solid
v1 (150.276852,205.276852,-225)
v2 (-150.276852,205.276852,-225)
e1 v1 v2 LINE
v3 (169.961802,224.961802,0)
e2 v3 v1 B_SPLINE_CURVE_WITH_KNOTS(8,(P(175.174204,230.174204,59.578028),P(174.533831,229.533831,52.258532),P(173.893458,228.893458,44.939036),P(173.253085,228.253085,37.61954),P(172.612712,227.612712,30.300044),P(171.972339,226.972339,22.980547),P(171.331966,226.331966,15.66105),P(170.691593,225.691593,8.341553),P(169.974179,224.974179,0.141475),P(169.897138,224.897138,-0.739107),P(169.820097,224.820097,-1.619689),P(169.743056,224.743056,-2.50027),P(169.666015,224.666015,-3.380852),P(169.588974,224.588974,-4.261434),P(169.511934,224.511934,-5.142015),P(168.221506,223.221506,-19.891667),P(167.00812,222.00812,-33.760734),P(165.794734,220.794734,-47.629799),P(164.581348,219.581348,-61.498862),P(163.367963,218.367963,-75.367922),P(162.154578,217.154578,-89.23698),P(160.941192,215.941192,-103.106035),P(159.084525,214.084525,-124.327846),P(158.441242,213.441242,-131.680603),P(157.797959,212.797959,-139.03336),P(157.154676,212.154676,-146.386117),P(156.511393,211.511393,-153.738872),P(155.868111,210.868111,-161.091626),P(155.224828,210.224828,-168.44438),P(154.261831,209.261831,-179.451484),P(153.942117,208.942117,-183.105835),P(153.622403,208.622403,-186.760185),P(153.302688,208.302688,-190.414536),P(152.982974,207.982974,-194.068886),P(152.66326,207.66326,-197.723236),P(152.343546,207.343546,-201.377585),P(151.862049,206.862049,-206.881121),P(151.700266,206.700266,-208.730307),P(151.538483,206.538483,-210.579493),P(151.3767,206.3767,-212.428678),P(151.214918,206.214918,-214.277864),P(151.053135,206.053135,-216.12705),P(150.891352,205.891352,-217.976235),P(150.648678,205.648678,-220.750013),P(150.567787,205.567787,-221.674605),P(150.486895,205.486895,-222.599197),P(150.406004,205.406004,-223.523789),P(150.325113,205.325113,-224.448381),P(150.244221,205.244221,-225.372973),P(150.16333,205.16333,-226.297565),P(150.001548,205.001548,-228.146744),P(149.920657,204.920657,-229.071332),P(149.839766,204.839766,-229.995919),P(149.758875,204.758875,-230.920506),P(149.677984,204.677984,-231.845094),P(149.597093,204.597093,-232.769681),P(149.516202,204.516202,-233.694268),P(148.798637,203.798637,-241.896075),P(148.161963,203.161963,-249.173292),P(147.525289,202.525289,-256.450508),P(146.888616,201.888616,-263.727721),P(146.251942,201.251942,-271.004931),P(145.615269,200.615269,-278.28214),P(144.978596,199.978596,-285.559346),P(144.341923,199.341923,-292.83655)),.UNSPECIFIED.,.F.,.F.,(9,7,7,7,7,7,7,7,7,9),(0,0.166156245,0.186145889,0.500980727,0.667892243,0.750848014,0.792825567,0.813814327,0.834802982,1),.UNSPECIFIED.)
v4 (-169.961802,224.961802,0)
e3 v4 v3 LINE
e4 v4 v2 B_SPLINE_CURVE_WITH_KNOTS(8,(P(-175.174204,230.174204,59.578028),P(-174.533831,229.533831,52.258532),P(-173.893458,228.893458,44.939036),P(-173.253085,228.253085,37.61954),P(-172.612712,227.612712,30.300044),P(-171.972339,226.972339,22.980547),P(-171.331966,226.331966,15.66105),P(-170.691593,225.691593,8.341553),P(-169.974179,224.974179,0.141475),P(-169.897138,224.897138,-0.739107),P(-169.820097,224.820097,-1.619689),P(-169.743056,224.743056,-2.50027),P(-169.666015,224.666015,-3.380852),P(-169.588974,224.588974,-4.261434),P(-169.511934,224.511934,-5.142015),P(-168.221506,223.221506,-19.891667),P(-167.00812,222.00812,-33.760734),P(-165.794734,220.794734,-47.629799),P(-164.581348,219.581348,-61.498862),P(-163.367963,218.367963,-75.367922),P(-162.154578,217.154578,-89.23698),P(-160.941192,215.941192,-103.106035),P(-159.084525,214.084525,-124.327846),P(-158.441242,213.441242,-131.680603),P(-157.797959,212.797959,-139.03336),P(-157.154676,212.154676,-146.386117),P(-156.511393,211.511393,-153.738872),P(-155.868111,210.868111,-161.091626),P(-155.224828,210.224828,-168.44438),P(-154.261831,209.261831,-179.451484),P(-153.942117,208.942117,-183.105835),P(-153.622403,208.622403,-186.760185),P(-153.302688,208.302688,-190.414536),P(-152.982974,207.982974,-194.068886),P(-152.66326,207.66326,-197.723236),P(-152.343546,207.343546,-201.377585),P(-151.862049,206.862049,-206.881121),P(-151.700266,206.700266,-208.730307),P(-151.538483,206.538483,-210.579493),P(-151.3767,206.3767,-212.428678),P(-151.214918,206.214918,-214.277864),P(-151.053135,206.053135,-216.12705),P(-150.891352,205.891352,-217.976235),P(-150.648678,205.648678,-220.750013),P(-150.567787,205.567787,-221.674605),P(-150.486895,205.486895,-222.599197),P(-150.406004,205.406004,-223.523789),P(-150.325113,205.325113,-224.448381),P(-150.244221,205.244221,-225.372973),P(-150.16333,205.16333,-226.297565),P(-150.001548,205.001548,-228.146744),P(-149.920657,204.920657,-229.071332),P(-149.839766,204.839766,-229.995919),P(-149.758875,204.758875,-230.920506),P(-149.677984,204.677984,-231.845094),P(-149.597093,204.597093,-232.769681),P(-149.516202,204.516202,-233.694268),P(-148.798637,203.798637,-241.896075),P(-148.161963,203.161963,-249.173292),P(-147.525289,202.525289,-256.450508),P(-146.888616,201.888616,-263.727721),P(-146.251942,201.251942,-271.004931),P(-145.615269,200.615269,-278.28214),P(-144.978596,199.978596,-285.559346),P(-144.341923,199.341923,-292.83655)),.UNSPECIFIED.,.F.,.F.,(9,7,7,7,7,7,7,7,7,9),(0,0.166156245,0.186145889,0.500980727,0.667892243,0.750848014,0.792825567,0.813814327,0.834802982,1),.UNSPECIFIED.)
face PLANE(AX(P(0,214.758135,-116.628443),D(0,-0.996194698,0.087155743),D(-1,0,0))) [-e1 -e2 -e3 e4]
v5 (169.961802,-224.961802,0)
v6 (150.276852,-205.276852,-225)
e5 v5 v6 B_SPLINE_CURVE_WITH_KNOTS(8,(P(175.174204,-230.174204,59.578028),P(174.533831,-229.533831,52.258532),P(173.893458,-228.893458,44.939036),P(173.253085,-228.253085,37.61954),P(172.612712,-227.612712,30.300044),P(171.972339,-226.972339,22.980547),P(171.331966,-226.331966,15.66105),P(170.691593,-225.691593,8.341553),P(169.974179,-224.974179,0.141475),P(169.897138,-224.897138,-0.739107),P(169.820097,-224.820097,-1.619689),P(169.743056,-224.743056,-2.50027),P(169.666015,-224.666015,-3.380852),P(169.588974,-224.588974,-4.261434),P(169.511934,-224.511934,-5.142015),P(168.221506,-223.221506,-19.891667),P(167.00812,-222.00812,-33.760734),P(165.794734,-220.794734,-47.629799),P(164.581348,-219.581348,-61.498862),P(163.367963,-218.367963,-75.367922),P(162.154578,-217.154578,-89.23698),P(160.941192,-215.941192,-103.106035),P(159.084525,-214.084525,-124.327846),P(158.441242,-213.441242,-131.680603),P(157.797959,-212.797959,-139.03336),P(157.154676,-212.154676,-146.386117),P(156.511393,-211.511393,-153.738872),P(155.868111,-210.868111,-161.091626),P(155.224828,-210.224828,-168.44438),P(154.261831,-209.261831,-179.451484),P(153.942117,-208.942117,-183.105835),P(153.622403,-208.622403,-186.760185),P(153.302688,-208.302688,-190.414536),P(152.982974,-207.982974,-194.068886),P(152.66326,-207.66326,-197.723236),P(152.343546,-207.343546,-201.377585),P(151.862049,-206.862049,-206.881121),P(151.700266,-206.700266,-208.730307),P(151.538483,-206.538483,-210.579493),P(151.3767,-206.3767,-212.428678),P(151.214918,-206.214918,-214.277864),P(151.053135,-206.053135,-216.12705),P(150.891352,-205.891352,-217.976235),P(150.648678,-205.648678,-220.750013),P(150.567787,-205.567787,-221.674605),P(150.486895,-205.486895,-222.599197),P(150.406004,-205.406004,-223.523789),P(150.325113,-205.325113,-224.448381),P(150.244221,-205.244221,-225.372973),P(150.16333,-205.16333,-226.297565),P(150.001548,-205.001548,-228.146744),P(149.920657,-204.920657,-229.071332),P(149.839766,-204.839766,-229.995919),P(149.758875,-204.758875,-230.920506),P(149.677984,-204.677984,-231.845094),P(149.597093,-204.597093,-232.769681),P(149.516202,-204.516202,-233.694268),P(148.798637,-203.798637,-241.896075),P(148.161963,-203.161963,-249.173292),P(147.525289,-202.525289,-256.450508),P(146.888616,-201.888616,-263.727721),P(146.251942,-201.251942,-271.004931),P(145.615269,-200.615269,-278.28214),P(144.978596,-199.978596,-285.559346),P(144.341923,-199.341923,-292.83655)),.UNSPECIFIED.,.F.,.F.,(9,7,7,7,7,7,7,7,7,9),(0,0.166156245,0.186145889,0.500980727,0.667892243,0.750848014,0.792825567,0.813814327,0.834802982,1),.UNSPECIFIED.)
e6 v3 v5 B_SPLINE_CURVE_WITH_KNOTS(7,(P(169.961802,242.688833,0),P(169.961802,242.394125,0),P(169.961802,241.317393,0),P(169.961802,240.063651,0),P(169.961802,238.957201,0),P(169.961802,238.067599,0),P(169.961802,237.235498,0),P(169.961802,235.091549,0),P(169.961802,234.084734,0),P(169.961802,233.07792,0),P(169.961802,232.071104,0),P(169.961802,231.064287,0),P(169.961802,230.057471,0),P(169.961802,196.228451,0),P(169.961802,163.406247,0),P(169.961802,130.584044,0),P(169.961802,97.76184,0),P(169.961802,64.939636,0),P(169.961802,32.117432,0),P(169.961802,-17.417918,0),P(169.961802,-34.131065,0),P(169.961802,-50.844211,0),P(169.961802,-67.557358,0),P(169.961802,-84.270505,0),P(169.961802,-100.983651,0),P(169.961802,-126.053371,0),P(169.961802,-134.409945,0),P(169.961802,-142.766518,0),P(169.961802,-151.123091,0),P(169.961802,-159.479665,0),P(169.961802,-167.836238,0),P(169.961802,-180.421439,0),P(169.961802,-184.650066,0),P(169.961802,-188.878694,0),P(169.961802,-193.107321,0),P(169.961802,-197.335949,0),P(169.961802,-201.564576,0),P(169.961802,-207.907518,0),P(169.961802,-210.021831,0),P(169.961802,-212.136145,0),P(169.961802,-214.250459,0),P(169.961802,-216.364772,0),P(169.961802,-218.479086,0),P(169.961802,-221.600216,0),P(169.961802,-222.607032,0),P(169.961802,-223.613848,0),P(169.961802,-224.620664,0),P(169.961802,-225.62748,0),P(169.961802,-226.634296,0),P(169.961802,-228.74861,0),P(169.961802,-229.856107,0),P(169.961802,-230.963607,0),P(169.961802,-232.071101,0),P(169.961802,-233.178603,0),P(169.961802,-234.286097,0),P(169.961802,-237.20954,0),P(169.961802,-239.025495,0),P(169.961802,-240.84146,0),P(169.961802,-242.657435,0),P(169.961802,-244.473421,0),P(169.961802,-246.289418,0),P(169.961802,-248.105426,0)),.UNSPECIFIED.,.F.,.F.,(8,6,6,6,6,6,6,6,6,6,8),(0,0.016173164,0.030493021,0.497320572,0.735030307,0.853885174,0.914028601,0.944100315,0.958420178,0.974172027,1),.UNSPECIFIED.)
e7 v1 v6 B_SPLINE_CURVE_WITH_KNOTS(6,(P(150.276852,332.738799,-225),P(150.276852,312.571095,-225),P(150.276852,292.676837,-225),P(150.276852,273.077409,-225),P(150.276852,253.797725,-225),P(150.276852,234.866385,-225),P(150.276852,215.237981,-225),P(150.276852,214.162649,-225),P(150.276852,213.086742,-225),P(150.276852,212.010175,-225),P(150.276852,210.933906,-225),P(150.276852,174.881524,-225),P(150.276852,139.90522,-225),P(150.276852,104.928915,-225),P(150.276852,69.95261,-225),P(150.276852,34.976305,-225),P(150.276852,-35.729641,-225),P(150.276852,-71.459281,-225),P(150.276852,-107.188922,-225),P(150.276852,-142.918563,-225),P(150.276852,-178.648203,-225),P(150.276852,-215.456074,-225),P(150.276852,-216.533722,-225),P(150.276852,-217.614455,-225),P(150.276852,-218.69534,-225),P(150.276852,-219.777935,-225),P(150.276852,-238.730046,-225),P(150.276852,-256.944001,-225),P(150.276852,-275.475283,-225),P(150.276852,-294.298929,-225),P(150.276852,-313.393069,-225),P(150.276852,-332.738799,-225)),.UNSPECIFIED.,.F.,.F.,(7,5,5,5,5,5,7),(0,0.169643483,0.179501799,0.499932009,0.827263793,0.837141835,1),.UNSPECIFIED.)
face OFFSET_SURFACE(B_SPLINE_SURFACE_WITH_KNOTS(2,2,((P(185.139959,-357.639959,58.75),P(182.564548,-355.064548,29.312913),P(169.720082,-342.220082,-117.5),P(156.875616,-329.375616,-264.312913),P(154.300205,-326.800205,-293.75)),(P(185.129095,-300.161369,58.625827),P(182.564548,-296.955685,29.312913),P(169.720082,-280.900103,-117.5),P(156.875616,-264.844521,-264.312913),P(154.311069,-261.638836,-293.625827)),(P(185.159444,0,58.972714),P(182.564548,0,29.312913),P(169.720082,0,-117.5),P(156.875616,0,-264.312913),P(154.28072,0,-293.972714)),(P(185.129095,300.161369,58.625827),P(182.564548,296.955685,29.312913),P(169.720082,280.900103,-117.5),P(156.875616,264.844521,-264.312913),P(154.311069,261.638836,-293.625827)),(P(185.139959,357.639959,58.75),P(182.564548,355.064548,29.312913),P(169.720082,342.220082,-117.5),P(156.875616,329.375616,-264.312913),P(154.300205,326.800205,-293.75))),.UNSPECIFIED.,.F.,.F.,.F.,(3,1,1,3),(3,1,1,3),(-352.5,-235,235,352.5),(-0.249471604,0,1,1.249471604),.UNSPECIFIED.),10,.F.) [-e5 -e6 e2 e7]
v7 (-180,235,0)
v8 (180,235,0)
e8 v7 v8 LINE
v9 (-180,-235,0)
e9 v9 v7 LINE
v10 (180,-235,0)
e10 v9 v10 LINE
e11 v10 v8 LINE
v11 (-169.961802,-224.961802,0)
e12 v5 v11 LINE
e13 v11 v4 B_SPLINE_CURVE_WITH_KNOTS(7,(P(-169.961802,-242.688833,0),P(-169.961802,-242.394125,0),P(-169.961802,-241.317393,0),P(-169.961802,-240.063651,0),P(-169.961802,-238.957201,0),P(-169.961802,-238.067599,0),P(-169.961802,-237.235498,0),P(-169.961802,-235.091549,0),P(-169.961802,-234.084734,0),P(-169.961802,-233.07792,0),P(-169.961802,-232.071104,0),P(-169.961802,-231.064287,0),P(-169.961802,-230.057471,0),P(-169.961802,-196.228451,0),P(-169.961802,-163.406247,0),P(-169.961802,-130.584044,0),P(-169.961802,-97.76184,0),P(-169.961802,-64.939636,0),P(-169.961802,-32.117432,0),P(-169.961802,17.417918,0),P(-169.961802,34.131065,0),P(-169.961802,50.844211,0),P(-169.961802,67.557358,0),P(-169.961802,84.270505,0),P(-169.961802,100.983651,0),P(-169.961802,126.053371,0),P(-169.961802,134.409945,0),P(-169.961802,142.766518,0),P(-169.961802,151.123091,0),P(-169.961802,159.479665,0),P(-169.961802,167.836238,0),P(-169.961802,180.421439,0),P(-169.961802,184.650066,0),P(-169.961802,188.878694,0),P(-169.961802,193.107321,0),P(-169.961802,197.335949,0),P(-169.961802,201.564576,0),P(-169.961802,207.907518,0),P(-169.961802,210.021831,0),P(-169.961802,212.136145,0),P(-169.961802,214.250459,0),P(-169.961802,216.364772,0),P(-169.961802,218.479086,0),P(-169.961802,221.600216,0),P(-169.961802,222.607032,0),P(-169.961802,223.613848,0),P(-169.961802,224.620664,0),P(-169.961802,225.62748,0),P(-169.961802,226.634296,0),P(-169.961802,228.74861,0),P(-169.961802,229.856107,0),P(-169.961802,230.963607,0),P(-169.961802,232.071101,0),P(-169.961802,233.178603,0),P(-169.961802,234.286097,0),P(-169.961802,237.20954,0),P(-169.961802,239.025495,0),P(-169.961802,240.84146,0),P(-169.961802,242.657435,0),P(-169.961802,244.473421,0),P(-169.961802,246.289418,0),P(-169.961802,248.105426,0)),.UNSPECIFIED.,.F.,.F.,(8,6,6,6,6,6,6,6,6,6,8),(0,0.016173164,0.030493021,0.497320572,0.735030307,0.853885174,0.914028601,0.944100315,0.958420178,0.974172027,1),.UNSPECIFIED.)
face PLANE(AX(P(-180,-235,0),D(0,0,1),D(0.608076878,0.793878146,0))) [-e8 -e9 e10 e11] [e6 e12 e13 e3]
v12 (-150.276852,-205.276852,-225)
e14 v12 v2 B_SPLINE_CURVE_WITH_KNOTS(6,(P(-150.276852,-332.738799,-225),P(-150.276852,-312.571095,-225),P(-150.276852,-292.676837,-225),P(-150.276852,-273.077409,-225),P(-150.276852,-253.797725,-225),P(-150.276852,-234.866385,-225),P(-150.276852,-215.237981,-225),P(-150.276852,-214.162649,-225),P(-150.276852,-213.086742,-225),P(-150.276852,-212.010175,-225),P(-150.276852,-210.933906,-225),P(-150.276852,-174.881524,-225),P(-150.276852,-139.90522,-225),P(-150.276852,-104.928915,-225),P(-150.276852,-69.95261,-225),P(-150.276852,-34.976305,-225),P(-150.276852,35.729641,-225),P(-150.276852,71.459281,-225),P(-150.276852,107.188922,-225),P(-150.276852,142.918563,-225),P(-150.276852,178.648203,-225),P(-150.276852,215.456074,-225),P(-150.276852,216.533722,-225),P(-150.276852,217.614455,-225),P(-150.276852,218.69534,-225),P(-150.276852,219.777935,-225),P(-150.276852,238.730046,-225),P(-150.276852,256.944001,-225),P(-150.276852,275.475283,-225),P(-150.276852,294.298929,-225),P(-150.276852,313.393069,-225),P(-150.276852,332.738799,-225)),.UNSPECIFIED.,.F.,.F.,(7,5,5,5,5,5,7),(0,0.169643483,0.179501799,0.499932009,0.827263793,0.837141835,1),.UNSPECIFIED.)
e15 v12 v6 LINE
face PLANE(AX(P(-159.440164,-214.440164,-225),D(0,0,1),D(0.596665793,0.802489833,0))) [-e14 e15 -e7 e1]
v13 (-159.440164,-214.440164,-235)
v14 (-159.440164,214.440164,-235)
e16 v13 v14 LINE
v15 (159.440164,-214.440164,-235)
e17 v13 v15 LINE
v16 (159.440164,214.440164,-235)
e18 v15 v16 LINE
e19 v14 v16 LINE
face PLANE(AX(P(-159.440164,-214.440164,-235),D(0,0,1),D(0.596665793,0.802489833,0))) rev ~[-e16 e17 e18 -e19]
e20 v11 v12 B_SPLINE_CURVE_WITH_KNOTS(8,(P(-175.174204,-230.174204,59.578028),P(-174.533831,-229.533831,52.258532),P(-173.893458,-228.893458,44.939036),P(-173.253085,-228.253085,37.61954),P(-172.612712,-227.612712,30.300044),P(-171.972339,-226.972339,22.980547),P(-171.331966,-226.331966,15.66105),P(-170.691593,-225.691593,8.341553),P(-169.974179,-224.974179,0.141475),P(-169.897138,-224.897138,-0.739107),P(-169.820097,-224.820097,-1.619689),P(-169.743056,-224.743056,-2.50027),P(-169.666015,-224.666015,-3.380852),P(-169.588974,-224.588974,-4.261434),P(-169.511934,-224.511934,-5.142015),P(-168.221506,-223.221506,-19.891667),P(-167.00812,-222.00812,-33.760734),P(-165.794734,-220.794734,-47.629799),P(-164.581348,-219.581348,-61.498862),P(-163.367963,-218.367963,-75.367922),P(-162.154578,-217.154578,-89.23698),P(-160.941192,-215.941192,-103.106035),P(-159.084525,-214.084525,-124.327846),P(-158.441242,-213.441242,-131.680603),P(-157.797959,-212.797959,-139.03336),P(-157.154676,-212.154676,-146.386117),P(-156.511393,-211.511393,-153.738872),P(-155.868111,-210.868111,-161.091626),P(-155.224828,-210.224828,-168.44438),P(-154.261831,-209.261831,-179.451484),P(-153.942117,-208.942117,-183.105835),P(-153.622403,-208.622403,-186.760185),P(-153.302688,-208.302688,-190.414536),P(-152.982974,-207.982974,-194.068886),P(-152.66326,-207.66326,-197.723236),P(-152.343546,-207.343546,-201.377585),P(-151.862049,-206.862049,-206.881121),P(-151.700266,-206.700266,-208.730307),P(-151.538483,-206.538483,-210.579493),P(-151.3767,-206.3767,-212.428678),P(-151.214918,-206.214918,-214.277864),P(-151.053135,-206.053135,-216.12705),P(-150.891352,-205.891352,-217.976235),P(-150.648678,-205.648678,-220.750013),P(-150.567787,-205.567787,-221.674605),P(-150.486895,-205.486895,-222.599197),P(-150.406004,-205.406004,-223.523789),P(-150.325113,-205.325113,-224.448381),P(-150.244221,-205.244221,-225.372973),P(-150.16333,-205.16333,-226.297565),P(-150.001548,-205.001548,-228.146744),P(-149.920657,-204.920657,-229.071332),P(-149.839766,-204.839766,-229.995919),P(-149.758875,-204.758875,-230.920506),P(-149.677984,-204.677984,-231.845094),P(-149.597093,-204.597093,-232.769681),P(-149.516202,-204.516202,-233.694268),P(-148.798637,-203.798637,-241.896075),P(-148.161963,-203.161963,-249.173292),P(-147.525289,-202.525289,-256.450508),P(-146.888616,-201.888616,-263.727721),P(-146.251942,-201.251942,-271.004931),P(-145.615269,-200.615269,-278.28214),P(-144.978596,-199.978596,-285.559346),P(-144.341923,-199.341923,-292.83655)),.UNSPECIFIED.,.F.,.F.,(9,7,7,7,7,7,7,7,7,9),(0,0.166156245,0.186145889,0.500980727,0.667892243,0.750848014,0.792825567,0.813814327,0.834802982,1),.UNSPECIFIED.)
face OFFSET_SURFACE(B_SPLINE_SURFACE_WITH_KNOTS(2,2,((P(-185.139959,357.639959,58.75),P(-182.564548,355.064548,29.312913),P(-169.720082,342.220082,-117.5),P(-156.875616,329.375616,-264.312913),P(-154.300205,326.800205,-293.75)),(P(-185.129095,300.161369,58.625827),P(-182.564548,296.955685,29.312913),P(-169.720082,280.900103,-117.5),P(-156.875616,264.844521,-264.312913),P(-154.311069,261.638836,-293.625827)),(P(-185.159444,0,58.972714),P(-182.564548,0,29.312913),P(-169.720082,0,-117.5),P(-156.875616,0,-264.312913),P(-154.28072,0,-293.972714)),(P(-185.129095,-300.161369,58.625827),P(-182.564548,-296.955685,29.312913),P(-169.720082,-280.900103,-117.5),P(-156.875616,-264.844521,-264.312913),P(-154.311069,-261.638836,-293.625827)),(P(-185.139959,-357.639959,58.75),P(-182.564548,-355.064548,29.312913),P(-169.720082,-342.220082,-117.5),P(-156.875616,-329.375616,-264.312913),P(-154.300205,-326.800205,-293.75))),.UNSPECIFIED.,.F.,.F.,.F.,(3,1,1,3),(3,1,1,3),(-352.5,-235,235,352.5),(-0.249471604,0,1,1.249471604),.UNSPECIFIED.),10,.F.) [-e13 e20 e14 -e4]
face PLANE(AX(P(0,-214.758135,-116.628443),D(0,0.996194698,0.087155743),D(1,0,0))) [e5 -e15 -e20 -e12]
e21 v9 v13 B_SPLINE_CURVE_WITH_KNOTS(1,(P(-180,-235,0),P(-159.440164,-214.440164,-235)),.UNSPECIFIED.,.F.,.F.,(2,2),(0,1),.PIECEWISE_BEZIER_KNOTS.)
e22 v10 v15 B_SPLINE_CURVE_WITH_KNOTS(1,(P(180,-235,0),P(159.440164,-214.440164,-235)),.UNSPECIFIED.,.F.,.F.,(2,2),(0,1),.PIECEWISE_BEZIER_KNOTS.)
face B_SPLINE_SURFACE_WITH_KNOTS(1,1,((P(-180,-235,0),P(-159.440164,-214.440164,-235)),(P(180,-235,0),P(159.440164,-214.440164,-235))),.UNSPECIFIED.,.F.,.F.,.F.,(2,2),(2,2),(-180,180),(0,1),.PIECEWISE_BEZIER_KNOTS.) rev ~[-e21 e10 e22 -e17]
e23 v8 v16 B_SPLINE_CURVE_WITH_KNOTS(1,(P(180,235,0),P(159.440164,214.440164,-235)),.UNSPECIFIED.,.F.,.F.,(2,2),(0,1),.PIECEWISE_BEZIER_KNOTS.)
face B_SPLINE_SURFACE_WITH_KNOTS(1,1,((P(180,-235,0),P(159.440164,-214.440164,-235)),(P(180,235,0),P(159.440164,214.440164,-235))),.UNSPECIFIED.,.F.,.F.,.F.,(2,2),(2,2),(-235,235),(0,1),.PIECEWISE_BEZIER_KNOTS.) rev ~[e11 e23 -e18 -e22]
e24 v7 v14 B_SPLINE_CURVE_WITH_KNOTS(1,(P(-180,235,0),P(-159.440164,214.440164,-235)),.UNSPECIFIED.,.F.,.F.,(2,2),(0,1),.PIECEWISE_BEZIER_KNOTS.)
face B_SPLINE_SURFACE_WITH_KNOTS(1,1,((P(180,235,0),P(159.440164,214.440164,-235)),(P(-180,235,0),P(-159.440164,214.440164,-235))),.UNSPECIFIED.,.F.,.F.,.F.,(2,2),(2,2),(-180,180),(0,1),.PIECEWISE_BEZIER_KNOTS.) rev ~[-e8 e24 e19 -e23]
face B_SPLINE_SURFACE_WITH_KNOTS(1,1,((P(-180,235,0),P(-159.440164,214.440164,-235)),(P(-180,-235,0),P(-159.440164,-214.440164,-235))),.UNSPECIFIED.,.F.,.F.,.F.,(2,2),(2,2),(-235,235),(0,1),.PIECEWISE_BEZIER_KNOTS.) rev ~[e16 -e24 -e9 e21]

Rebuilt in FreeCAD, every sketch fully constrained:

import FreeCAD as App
import Part
import Sketcher

V = App.Vector
Q = App.Units.Quantity


def faces_at(feature, points):
    """Names of the faces that lie closest to the given points."""
    faces = feature.Shape.Faces
    near = lambda p: min(range(len(faces)), key=lambda i: faces[i].distToShape(Part.Vertex(*p))[0])
    return sorted({f"Face{near(p) + 1}" for p in points})


def add_polygon(sketch, points):
    """Adds a closed chain of lines whose ends are joined by coincident constraints."""
    first, n = sketch.GeometryCount, len(points)
    for a, b in zip(points, points[1:] + points[:1]):
        sketch.addGeometry(Part.LineSegment(App.Vector(*a, 0), App.Vector(*b, 0)), False)
    for i in range(n):
        sketch.addConstraint(Sketcher.Constraint("Coincident", first + i, 2, first + (i + 1) % n, 1))

doc = App.newDocument("Part")
params = doc.addObject("Spreadsheet::Sheet", "Params")
for row, (alias, value) in enumerate([
    ("sketch1_width", "360 mm"),
    ("sketch1_height", "470 mm"),
    ("pad1_length", "235 mm"),
    ("pad1_taper", "-5 deg"),
    ("thickness_wall", "10 mm"),
], start=1):
    params.set(f"A{row}", alias)
    params.set(f"B{row}", "=" + value)
    params.setAlias(f"B{row}", alias)

body = doc.addObject("PartDesign::Body", "Body")

sketch1 = doc.addObject("Sketcher::SketchObject", "Sketch")
body.addObject(sketch1)
sketch1.AttachmentSupport = (doc.XY_Plane, [""])
sketch1.MapMode = "FlatFace"
add_polygon(sketch1, [(-180, 235), (-180, -235), (180, -235), (180, 235)])
sketch1.addConstraint([
    Sketcher.Constraint("Vertical", 0),
    Sketcher.Constraint("Horizontal", 1),
    Sketcher.Constraint("Vertical", 2),
    Sketcher.Constraint("Horizontal", 3),
    Sketcher.Constraint("Symmetric", 0, 2, 2, 2, -1, 1),
    Sketcher.Constraint("DistanceX", 1, 1, 1, 2, Q("360 mm")),
    Sketcher.Constraint("DistanceY", 0, 2, 0, 1, Q("470 mm")),
])
sketch1.setExpression("Constraints[9]", "Params.sketch1_width")
sketch1.setExpression("Constraints[10]", "Params.sketch1_height")
pad1 = doc.addObject("PartDesign::Pad", "Pad")
body.addObject(pad1)
pad1.Profile = sketch1
pad1.setExpression("Length", "Params.pad1_length")
pad1.Reversed = True
pad1.setExpression("TaperAngle", "Params.pad1_taper")
doc.recompute()

thickness = doc.addObject("PartDesign::Thickness", "Thickness")
body.addObject(thickness)
thickness.Base = (pad1, faces_at(pad1, [(0, 0, 0)]))
thickness.setExpression("Value", "Params.thickness_wall")
thickness.Reversed = True
thickness.Join = "Intersection"

doc.recompute()
